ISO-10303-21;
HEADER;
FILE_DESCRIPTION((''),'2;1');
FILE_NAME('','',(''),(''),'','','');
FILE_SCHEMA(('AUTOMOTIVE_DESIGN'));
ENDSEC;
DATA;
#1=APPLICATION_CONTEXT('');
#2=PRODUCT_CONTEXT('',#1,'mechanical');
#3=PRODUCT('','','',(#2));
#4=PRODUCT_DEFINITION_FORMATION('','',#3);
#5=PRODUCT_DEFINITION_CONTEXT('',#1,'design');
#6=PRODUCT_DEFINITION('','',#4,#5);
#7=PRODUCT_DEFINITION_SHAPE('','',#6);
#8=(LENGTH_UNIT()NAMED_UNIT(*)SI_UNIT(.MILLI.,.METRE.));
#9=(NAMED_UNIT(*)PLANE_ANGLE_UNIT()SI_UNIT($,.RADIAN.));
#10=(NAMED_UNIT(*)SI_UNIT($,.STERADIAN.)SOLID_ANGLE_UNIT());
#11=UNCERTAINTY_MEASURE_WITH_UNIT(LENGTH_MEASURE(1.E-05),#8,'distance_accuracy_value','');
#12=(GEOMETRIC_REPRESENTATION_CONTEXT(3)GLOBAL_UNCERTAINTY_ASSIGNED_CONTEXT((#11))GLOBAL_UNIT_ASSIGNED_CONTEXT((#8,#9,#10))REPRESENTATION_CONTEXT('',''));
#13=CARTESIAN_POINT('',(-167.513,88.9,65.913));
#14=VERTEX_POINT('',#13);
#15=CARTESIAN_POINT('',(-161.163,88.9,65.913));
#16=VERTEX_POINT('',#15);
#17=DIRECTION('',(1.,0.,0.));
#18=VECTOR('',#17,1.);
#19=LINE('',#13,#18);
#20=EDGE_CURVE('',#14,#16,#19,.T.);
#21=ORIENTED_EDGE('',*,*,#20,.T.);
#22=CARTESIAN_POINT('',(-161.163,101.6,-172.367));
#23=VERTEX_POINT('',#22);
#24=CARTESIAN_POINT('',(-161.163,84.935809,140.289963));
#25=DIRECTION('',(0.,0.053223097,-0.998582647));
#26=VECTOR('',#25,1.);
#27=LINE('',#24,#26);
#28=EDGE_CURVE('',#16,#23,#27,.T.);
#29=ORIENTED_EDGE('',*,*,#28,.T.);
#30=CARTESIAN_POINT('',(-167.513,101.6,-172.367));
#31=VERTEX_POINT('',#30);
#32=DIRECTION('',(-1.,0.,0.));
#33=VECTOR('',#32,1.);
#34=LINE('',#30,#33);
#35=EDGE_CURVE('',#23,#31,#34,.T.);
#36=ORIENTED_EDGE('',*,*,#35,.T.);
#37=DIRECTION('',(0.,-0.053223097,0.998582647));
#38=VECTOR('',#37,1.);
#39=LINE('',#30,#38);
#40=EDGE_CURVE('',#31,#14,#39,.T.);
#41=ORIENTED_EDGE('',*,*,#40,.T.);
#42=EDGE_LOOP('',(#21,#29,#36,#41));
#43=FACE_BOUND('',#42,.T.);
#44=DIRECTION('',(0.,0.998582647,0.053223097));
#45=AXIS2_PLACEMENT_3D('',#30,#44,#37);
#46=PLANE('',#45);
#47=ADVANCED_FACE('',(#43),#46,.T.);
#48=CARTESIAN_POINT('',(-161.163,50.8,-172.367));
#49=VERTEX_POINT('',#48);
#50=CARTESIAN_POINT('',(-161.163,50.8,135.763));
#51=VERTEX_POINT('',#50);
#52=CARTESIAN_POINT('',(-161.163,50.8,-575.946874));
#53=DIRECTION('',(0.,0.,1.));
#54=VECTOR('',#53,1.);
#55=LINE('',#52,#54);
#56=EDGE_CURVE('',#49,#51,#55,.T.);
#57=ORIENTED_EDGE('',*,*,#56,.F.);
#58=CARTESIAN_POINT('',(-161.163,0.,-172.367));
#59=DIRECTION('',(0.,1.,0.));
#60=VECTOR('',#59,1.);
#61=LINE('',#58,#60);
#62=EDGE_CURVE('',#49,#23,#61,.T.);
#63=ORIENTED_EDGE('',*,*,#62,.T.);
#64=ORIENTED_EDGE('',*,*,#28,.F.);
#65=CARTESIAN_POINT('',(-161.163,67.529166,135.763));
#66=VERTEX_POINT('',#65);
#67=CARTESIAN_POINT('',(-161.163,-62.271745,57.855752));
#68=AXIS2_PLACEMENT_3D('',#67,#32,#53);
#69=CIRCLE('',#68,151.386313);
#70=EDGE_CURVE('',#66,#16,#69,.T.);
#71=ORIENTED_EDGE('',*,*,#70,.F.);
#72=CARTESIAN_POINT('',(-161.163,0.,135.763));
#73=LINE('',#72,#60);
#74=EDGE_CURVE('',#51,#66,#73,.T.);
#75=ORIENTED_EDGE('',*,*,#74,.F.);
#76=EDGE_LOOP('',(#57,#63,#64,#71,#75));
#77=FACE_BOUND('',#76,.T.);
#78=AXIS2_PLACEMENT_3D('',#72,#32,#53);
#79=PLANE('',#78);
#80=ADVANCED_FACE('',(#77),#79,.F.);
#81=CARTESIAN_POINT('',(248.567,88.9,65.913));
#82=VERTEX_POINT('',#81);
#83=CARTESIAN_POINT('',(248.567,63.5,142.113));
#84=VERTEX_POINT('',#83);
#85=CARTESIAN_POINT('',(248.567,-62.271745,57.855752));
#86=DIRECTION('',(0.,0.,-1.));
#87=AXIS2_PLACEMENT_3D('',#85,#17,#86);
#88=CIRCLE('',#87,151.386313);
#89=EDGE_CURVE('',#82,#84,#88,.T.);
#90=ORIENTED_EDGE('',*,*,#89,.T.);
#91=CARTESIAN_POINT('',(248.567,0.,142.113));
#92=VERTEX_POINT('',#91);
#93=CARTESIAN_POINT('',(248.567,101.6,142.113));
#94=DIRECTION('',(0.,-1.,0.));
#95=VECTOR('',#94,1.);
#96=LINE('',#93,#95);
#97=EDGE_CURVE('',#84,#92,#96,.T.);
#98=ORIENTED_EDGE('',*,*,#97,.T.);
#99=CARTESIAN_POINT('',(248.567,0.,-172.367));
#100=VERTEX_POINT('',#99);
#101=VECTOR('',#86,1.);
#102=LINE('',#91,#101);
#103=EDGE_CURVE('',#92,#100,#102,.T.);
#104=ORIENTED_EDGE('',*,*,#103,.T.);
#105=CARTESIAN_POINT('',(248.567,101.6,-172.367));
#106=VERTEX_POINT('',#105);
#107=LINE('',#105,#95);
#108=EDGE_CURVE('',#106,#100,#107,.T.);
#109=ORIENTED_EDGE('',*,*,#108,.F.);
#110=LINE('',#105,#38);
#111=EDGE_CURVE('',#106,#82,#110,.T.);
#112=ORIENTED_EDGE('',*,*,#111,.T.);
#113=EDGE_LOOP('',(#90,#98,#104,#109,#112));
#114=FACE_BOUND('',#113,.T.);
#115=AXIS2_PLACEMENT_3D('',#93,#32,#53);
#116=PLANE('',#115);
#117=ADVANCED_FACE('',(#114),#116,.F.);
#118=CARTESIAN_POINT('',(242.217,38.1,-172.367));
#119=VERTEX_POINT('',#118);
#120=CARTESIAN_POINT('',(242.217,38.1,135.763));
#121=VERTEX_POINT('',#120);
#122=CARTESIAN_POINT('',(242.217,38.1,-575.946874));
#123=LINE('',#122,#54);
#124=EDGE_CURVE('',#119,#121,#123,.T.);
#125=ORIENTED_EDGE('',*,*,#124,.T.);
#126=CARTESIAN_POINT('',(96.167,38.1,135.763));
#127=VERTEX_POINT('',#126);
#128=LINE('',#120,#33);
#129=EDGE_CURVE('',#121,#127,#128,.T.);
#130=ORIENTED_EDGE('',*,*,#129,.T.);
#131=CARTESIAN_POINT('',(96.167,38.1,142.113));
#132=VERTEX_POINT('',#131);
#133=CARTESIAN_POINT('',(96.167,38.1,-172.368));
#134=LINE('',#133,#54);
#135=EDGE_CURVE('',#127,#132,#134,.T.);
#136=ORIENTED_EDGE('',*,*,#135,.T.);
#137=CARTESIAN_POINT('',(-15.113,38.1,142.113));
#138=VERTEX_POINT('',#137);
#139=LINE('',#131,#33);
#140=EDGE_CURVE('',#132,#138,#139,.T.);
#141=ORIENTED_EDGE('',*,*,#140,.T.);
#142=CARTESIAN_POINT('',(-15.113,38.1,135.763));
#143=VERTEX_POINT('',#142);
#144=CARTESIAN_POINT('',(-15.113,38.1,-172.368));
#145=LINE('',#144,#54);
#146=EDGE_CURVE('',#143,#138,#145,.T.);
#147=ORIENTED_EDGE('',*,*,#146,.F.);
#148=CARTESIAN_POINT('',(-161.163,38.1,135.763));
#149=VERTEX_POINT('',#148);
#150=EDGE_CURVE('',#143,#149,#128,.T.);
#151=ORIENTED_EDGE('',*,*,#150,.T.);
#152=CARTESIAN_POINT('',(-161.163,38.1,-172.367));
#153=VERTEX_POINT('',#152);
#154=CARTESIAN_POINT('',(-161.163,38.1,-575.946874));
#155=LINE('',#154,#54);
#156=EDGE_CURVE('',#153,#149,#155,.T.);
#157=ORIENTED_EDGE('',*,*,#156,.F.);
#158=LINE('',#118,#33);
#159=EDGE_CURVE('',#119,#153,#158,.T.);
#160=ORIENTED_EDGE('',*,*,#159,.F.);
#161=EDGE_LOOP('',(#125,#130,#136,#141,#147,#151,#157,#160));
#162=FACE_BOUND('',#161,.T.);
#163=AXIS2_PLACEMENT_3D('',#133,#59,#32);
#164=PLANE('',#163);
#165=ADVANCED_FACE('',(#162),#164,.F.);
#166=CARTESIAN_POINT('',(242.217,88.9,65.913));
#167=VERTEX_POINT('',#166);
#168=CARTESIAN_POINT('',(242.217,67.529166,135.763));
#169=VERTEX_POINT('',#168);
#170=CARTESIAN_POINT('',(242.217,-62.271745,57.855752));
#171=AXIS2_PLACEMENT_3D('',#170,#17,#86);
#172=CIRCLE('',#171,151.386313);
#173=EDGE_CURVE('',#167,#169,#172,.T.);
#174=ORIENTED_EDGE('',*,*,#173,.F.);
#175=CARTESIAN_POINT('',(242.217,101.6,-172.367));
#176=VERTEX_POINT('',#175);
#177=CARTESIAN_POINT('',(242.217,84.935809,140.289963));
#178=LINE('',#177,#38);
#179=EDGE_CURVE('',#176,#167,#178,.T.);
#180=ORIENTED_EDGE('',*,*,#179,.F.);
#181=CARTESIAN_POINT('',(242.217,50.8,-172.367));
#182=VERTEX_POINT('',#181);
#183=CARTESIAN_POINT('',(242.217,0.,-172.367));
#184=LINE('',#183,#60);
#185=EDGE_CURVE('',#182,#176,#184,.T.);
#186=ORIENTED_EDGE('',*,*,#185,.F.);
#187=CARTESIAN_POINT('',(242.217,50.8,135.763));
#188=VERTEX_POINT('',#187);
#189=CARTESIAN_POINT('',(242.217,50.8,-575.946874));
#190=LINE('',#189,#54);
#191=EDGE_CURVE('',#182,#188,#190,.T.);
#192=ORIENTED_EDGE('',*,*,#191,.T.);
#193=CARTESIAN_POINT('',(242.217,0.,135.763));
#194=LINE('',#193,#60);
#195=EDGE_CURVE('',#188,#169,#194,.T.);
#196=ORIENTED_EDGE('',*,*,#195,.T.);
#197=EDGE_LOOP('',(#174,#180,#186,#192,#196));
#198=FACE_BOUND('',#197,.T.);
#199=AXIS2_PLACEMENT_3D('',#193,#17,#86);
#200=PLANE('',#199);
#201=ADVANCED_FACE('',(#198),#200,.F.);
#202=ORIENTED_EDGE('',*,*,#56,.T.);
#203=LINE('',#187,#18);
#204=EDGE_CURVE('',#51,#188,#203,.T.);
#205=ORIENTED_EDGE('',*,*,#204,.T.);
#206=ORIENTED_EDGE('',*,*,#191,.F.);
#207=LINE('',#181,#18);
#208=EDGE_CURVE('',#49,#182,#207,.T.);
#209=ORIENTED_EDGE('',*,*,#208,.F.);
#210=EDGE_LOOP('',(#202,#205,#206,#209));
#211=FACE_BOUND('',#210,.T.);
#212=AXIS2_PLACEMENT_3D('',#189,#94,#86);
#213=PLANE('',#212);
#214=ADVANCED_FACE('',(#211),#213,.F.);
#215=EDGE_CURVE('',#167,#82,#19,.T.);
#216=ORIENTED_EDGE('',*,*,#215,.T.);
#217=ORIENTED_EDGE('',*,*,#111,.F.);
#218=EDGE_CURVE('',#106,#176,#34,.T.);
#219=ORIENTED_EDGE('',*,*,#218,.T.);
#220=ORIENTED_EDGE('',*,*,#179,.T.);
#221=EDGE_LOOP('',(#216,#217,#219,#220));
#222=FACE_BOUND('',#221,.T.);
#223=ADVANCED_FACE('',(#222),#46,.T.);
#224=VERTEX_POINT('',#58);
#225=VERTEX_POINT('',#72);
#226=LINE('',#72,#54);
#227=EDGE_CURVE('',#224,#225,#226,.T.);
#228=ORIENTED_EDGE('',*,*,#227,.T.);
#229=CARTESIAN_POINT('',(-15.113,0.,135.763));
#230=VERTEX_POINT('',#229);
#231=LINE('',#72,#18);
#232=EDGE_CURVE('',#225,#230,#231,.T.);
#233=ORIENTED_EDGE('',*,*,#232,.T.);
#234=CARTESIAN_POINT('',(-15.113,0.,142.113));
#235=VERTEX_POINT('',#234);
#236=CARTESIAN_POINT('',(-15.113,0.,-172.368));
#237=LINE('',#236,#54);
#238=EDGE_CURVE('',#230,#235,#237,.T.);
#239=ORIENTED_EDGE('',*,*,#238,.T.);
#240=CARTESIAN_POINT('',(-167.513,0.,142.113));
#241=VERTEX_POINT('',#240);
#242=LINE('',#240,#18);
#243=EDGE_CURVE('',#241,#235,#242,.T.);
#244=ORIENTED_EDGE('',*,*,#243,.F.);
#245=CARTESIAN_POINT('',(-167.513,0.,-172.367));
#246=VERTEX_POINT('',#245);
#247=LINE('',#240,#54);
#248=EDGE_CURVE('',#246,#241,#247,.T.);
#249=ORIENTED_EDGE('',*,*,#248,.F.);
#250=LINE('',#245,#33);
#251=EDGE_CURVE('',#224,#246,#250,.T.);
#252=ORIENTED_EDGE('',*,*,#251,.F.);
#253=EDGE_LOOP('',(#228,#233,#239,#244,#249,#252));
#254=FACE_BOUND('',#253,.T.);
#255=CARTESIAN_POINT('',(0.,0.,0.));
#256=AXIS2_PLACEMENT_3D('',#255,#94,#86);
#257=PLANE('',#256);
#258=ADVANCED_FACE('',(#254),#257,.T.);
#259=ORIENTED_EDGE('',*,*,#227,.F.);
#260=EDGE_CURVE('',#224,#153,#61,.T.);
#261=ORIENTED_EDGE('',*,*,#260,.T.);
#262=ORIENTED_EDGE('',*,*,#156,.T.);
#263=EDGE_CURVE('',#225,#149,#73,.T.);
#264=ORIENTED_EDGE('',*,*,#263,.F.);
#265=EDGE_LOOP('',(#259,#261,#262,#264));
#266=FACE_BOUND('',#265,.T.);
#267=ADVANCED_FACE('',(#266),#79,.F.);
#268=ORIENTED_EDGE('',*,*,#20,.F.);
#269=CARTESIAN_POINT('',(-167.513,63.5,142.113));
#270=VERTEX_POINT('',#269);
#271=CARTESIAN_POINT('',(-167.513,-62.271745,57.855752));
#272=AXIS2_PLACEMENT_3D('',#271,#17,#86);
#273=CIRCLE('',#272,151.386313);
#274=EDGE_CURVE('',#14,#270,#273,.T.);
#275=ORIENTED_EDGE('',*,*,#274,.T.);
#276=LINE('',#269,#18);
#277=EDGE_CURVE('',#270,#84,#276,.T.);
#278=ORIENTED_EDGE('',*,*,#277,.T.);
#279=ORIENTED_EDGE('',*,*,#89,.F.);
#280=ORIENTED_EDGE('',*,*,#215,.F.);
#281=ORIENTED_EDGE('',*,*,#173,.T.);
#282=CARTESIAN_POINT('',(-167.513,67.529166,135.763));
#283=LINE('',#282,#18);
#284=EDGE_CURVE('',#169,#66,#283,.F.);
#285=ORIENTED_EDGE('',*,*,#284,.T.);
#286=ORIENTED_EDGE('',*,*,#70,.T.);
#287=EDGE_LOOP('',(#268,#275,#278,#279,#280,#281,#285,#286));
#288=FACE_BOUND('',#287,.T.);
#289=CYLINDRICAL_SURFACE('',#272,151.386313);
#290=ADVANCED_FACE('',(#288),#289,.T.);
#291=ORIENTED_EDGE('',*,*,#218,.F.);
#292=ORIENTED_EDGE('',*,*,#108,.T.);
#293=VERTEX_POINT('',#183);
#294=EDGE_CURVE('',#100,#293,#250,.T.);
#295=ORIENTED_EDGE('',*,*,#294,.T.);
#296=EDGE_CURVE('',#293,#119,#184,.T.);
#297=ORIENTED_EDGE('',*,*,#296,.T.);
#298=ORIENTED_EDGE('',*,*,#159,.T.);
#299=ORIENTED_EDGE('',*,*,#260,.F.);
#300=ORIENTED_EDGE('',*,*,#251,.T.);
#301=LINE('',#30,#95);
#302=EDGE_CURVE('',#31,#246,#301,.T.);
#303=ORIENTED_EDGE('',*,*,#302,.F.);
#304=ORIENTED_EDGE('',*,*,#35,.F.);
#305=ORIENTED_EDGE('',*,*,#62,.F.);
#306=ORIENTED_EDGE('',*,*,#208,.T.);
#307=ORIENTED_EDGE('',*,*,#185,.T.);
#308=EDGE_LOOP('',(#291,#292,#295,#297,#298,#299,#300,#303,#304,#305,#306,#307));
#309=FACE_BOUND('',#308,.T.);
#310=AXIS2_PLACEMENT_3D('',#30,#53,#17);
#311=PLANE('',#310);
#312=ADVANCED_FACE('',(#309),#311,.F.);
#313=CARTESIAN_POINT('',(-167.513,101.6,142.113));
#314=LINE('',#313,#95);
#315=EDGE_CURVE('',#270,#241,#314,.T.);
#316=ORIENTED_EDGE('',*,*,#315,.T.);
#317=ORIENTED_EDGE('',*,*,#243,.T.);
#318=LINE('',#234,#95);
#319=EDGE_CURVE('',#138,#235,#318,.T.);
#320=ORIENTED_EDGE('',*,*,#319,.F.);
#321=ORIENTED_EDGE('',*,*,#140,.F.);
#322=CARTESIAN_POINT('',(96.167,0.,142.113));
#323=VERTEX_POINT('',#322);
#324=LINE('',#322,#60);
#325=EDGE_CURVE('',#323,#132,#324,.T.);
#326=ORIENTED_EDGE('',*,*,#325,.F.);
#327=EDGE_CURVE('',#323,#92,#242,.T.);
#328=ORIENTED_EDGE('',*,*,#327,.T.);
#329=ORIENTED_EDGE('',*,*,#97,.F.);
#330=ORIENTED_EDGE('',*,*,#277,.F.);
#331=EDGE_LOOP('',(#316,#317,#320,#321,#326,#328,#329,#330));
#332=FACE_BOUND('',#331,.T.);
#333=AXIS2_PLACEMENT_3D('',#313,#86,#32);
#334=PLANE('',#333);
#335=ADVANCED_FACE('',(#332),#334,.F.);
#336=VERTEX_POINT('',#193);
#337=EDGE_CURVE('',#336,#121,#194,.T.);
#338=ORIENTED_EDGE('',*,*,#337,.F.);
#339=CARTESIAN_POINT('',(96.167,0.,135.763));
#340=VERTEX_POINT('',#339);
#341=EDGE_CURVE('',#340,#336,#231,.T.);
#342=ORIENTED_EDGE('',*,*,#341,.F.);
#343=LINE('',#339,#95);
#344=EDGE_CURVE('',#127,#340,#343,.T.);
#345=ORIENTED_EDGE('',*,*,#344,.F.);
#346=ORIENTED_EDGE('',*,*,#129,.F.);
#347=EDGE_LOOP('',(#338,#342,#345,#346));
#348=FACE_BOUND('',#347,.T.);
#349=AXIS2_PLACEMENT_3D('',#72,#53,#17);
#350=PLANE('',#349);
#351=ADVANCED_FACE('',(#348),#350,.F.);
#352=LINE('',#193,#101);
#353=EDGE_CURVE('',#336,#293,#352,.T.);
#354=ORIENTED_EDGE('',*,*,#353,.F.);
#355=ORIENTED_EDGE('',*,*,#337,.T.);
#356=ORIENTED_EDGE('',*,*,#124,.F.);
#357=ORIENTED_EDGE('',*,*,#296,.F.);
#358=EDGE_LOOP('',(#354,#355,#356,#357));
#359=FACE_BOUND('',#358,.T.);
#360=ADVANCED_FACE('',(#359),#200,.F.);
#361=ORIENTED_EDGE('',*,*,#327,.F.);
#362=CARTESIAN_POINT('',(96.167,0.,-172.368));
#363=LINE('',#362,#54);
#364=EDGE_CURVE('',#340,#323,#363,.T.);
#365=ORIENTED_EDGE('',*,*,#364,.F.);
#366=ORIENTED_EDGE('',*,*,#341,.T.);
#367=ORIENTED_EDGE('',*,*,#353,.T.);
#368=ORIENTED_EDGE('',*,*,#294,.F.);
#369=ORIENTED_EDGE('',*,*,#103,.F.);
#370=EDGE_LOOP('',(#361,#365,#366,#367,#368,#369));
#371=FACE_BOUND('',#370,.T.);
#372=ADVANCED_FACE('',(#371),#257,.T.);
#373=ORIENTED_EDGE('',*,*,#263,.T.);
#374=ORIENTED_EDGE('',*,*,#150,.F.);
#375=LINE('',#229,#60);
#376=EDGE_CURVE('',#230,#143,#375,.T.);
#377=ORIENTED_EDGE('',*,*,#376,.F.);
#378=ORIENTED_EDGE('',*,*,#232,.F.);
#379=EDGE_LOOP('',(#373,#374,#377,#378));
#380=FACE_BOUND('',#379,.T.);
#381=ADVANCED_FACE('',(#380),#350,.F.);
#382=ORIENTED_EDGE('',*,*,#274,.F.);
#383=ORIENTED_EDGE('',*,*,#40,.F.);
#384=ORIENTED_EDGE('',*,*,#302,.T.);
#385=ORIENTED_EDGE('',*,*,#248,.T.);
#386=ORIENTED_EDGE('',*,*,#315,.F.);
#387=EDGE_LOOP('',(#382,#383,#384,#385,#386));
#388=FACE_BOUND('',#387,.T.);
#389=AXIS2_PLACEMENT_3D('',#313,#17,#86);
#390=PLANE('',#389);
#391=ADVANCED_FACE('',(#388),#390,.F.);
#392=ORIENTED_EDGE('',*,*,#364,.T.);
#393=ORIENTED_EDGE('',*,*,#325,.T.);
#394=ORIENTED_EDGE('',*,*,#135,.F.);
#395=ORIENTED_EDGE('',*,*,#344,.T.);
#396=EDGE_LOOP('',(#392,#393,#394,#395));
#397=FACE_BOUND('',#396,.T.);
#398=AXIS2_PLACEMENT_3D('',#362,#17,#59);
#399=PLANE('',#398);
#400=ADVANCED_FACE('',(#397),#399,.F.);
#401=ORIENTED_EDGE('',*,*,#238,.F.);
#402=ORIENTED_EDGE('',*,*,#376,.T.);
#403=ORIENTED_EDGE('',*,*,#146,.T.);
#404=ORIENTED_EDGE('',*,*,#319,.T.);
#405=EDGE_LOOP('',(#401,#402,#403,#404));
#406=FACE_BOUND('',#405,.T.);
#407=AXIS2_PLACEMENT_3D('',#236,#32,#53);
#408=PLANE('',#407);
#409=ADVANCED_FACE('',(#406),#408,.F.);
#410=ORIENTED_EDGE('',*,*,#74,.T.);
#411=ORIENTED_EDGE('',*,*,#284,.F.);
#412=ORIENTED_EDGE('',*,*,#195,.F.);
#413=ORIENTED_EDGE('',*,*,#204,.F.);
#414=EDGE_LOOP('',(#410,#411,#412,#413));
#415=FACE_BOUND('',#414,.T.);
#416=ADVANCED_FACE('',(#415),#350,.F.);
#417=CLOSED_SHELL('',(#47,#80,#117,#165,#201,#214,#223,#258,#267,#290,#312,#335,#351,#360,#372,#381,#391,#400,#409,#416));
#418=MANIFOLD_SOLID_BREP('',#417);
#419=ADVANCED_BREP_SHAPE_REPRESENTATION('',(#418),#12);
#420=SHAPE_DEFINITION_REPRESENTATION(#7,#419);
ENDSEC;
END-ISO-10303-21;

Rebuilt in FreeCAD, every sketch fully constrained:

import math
import FreeCAD as App
import Part
import Sketcher
from FreeCAD import Vector
Q = App.Units.Quantity


def add_polygon(sketch, points):
    """Adds a closed chain of lines whose ends are joined by coincident constraints."""
    first, n = sketch.GeometryCount, len(points)
    for a, b in zip(points, points[1:] + points[:1]):
        sketch.addGeometry(Part.LineSegment(App.Vector(*a, 0), App.Vector(*b, 0)), False)
    for i in range(n):
        sketch.addConstraint(Sketcher.Constraint("Coincident", first + i, 2, first + (i + 1) % n, 1))

doc = App.newDocument("Part")
body = doc.addObject("PartDesign::Body", "Body")

sketch1 = body.newObject("Sketcher::SketchObject", "Sketch")
sketch1.AttachmentSupport = (doc.getObject("XZ_Plane"), [""])
sketch1.MapMode = "FlatFace"
add_polygon(sketch1, [(-167.513, -172.367), (-167.513, 142.113), (248.567, 142.113), (248.567, -172.367)])
sketch1.addConstraint([
    Sketcher.Constraint("Vertical", 0),
    Sketcher.Constraint("Horizontal", 1),
    Sketcher.Constraint("Vertical", 2),
    Sketcher.Constraint("Horizontal", 3),
    Sketcher.Constraint("DistanceX", 0, 2, -1, 1, Q("6.595 in")),
    Sketcher.Constraint("DistanceY", -1, 1, 0, 2, Q("5.595 in")),
    Sketcher.Constraint("DistanceX", 1, 1, 1, 2, 416.08),
    Sketcher.Constraint("DistanceY", 0, 1, 0, 2, 314.48),
])
pad1 = body.newObject("PartDesign::Pad", "Pad")
pad1.Profile = sketch1
pad1.Length = Q("4 in")
pad1.Reversed = True

sketch2 = body.newObject("Sketcher::SketchObject", "Sketch001")
sketch2.AttachmentSupport = (doc.getObject("XZ_Plane"), [""])
sketch2.MapMode = "FlatFace"
sketch2.AttachmentOffset = App.Placement(Vector(0, 0, -4 * 25.4), App.Rotation())
add_polygon(sketch2, [(-161.163, -172.367), (-161.163, 135.763), (242.217, 135.763), (242.217, -172.367)])
sketch2.addConstraint([
    Sketcher.Constraint("Vertical", 0),
    Sketcher.Constraint("Horizontal", 1),
    Sketcher.Constraint("Vertical", 2),
    Sketcher.Constraint("Horizontal", 3),
    Sketcher.Constraint("DistanceX", 0, 2, -1, 1, Q("6.345 in")),
    Sketcher.Constraint("DistanceY", -1, 1, 0, 2, Q("5.345 in")),
    Sketcher.Constraint("DistanceX", 1, 1, 1, 2, 403.38),
    Sketcher.Constraint("DistanceY", 0, 1, 0, 2, 308.13),
])
pocket1 = body.newObject("PartDesign::Pocket", "Pocket")
pocket1.Profile = sketch2
pocket1.Type = "ThroughAll"
pocket1.Reversed = True

sketch3 = body.newObject("Sketcher::SketchObject", "Sketch002")
sketch3.AttachmentSupport = (doc.getObject("YZ_Plane"), [""])
sketch3.MapMode = "FlatFace"
sketch3.AttachmentOffset = App.Placement(Vector(0, 0, 248.567), App.Rotation())
sketch3.addGeometry([
    Part.LineSegment(Vector(101.6, 142.113, 0), Vector(63.5, 142.113, 0)),
    Part.ArcOfCircle(Part.Circle(Vector(-62.271745, 57.855752, 0), Vector(0, 0, 1), 151.386313), math.radians(3.0509), math.radians(33.818997)),
    Part.LineSegment(Vector(88.9, 65.913, 0), Vector(101.6, -172.367, 0)),
    Part.LineSegment(Vector(101.6, -172.367, 0), Vector(101.6, 142.113, 0)),
], False)
sketch3.addConstraint([
    Sketcher.Constraint("Coincident", 0, 2, 1, 2),
    Sketcher.Constraint("Tangent", 1, 1, 2, 1),
    Sketcher.Constraint("Coincident", 2, 2, 3, 1),
    Sketcher.Constraint("Coincident", 3, 2, 0, 1),
    Sketcher.Constraint("Horizontal", 0),
    Sketcher.Constraint("Vertical", 3),
    Sketcher.Constraint("DistanceX", 0, 2, 0, 1, Q("1.5 in")),
    Sketcher.Constraint("DistanceX", -1, 1, 2, 2, Q("4 in")),
    Sketcher.Constraint("DistanceX", 0, 2, 1, 1, Q("1 in")),
    Sketcher.Constraint("DistanceY", -1, 1, 0, 2, Q("5.595 in")),
    Sketcher.Constraint("DistanceY", 3, 1, 3, 2, 314.48),
    Sketcher.Constraint("Radius", 1, 151.386313),
])
pocket2 = body.newObject("PartDesign::Pocket", "Pocket001")
pocket2.Profile = sketch3
pocket2.Type = "ThroughAll"

sketch4 = body.newObject("Sketcher::SketchObject", "Sketch003")
sketch4.AttachmentSupport = (doc.getObject("XY_Plane"), [""])
sketch4.MapMode = "FlatFace"
sketch4.AttachmentOffset = App.Placement(Vector(0, 0, 5.595 * 25.4), App.Rotation())
add_polygon(sketch4, [(-15.113, 38.1), (-15.113, 0), (96.167, 0), (96.167, 38.1)])
sketch4.addConstraint([
    Sketcher.Constraint("Vertical", 0),
    Sketcher.Constraint("Horizontal", 1),
    Sketcher.Constraint("Vertical", 2),
    Sketcher.Constraint("Horizontal", 3),
    Sketcher.Constraint("PointOnObject", 0, 2, -1),
    Sketcher.Constraint("DistanceY", 0, 2, 0, 1, Q("1.5 in")),
    Sketcher.Constraint("DistanceX", 0, 2, -1, 1, Q("0.595 in")),
    Sketcher.Constraint("DistanceX", 1, 1, 1, 2, 111.28),
])
pocket3 = body.newObject("PartDesign::Pocket", "Pocket002")
pocket3.Profile = sketch4
pocket3.Type = "UpToFirst"

sketch5 = body.newObject("Sketcher::SketchObject", "Sketch004")
sketch5.AttachmentSupport = (doc.getObject("XY_Plane"), [""])
sketch5.MapMode = "FlatFace"
sketch5.AttachmentOffset = App.Placement(Vector(0, 0, 5.345 * 25.4), App.Rotation())
add_polygon(sketch5, [(242.217, 50.8), (242.217, 38.1), (-161.163, 38.1), (-161.163, 50.8)])
sketch5.addConstraint([
    Sketcher.Constraint("Vertical", 0),
    Sketcher.Constraint("Horizontal", 1),
    Sketcher.Constraint("Vertical", 2),
    Sketcher.Constraint("Horizontal", 3),
    Sketcher.Constraint("DistanceY", 0, 2, 0, 1, Q("0.5 in")),
    Sketcher.Constraint("DistanceY", -1, 1, 2, 2, Q("2 in")),
    Sketcher.Constraint("DistanceX", 1, 2, -1, 1, Q("6.345 in")),
    Sketcher.Constraint("DistanceX", 1, 2, 1, 1, 403.38),
])
pad2 = body.newObject("PartDesign::Pad", "Pad001")
pad2.Profile = sketch5
pad2.Length = 308.13
pad2.Reversed = True

doc.recompute()
